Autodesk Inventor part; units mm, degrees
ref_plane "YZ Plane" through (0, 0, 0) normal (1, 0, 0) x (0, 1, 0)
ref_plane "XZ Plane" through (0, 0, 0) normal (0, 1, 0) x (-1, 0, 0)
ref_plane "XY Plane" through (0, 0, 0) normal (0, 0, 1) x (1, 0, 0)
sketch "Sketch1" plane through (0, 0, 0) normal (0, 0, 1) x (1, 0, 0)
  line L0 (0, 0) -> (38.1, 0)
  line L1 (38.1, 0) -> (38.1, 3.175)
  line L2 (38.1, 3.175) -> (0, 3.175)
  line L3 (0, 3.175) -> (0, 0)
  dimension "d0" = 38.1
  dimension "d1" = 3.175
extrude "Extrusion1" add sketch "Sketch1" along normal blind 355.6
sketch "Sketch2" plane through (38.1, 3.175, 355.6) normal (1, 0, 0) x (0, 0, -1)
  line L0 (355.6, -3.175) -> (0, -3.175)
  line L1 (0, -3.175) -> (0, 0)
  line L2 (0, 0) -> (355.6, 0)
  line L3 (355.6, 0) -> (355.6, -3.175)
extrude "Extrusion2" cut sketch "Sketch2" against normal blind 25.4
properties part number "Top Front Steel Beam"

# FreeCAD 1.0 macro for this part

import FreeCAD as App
import Part
import Sketcher
from FreeCAD import Vector
Q = App.Units.Quantity

doc = App.newDocument("Part")
params = doc.addObject("Spreadsheet::Sheet", "Params")
for row, (alias, value) in enumerate([
    ("sketch1_width", "1.5 in"),
    ("sketch1_height", "0.125 in"),
    ("pad1_length", "14 in"),
    ("sketch2_height", "14 in"),
    ("sketch2_width", "0.125 in"),
    ("pocket1_length", "1 in"),
], start=1):
    params.set(f"A{row}", alias)
    params.set(f"B{row}", "=" + value)
    params.setAlias(f"B{row}", alias)

body = doc.addObject("PartDesign::Body", "Body")

sketch1 = body.newObject("Sketcher::SketchObject", "Sketch")
sketch1.AttachmentSupport = (doc.getObject("XY_Plane"), [""])
sketch1.MapMode = "FlatFace"
sketch1.addGeometry(Part.LineSegment(Vector(0, 3.2, 0), Vector(0, 0, 0)), False)
sketch1.addGeometry(Part.LineSegment(Vector(0, 0, 0), Vector(38.1, 0, 0)), False)
sketch1.addGeometry(Part.LineSegment(Vector(38.1, 0, 0), Vector(38.1, 3.2, 0)), False)
sketch1.addGeometry(Part.LineSegment(Vector(38.1, 3.2, 0), Vector(0, 3.2, 0)), False)
sketch1.addConstraint(Sketcher.Constraint("Coincident", 0, 2, 1, 1))
sketch1.addConstraint(Sketcher.Constraint("Coincident", 1, 2, 2, 1))
sketch1.addConstraint(Sketcher.Constraint("Coincident", 2, 2, 3, 1))
sketch1.addConstraint(Sketcher.Constraint("Coincident", 3, 2, 0, 1))
sketch1.addConstraint(Sketcher.Constraint("Vertical", 0))
sketch1.addConstraint(Sketcher.Constraint("Horizontal", 1))
sketch1.addConstraint(Sketcher.Constraint("Vertical", 2))
sketch1.addConstraint(Sketcher.Constraint("Horizontal", 3))
sketch1.addConstraint(Sketcher.Constraint("Coincident", 0, 2, -1, 1))
sketch1.addConstraint(Sketcher.Constraint("DistanceX", 1, 1, 1, 2, Q("1.5 in")))
sketch1.addConstraint(Sketcher.Constraint("DistanceY", 0, 2, 0, 1, Q("0.125 in")))
sketch1.setExpression("Constraints[9]", "Params.sketch1_width")
sketch1.setExpression("Constraints[10]", "Params.sketch1_height")
pad1 = body.newObject("PartDesign::Pad", "Pad")
pad1.Profile = sketch1
pad1.setExpression("Length", "Params.pad1_length")

sketch2 = body.newObject("Sketcher::SketchObject", "Sketch001")
sketch2.AttachmentSupport = (doc.getObject("YZ_Plane"), [""])
sketch2.MapMode = "FlatFace"
sketch2.AttachmentOffset = App.Placement(Vector(0, 0, 1.5 * 25.4), App.Rotation())
sketch2.addGeometry(Part.LineSegment(Vector(0, 355.6, 0), Vector(0, 0, 0)), False)
sketch2.addGeometry(Part.LineSegment(Vector(0, 0, 0), Vector(3.2, 0, 0)), False)
sketch2.addGeometry(Part.LineSegment(Vector(3.2, 0, 0), Vector(3.2, 355.6, 0)), False)
sketch2.addGeometry(Part.LineSegment(Vector(3.2, 355.6, 0), Vector(0, 355.6, 0)), False)
sketch2.addConstraint(Sketcher.Constraint("Coincident", 0, 2, 1, 1))
sketch2.addConstraint(Sketcher.Constraint("Coincident", 1, 2, 2, 1))
sketch2.addConstraint(Sketcher.Constraint("Coincident", 2, 2, 3, 1))
sketch2.addConstraint(Sketcher.Constraint("Coincident", 3, 2, 0, 1))
sketch2.addConstraint(Sketcher.Constraint("Vertical", 0))
sketch2.addConstraint(Sketcher.Constraint("Horizontal", 1))
sketch2.addConstraint(Sketcher.Constraint("Vertical", 2))
sketch2.addConstraint(Sketcher.Constraint("Horizontal", 3))
sketch2.addConstraint(Sketcher.Constraint("Coincident", 0, 2, -1, 1))
sketch2.addConstraint(Sketcher.Constraint("DistanceY", 0, 2, 0, 1, Q("14 in")))
sketch2.addConstraint(Sketcher.Constraint("DistanceX", 1, 1, 1, 2, Q("0.125 in")))
sketch2.setExpression("Constraints[9]", "Params.sketch2_height")
sketch2.setExpression("Constraints[10]", "Params.sketch2_width")
pocket1 = body.newObject("PartDesign::Pocket", "Pocket")
pocket1.Profile = sketch2
pocket1.setExpression("Length", "Params.pocket1_length")

doc.recompute()
